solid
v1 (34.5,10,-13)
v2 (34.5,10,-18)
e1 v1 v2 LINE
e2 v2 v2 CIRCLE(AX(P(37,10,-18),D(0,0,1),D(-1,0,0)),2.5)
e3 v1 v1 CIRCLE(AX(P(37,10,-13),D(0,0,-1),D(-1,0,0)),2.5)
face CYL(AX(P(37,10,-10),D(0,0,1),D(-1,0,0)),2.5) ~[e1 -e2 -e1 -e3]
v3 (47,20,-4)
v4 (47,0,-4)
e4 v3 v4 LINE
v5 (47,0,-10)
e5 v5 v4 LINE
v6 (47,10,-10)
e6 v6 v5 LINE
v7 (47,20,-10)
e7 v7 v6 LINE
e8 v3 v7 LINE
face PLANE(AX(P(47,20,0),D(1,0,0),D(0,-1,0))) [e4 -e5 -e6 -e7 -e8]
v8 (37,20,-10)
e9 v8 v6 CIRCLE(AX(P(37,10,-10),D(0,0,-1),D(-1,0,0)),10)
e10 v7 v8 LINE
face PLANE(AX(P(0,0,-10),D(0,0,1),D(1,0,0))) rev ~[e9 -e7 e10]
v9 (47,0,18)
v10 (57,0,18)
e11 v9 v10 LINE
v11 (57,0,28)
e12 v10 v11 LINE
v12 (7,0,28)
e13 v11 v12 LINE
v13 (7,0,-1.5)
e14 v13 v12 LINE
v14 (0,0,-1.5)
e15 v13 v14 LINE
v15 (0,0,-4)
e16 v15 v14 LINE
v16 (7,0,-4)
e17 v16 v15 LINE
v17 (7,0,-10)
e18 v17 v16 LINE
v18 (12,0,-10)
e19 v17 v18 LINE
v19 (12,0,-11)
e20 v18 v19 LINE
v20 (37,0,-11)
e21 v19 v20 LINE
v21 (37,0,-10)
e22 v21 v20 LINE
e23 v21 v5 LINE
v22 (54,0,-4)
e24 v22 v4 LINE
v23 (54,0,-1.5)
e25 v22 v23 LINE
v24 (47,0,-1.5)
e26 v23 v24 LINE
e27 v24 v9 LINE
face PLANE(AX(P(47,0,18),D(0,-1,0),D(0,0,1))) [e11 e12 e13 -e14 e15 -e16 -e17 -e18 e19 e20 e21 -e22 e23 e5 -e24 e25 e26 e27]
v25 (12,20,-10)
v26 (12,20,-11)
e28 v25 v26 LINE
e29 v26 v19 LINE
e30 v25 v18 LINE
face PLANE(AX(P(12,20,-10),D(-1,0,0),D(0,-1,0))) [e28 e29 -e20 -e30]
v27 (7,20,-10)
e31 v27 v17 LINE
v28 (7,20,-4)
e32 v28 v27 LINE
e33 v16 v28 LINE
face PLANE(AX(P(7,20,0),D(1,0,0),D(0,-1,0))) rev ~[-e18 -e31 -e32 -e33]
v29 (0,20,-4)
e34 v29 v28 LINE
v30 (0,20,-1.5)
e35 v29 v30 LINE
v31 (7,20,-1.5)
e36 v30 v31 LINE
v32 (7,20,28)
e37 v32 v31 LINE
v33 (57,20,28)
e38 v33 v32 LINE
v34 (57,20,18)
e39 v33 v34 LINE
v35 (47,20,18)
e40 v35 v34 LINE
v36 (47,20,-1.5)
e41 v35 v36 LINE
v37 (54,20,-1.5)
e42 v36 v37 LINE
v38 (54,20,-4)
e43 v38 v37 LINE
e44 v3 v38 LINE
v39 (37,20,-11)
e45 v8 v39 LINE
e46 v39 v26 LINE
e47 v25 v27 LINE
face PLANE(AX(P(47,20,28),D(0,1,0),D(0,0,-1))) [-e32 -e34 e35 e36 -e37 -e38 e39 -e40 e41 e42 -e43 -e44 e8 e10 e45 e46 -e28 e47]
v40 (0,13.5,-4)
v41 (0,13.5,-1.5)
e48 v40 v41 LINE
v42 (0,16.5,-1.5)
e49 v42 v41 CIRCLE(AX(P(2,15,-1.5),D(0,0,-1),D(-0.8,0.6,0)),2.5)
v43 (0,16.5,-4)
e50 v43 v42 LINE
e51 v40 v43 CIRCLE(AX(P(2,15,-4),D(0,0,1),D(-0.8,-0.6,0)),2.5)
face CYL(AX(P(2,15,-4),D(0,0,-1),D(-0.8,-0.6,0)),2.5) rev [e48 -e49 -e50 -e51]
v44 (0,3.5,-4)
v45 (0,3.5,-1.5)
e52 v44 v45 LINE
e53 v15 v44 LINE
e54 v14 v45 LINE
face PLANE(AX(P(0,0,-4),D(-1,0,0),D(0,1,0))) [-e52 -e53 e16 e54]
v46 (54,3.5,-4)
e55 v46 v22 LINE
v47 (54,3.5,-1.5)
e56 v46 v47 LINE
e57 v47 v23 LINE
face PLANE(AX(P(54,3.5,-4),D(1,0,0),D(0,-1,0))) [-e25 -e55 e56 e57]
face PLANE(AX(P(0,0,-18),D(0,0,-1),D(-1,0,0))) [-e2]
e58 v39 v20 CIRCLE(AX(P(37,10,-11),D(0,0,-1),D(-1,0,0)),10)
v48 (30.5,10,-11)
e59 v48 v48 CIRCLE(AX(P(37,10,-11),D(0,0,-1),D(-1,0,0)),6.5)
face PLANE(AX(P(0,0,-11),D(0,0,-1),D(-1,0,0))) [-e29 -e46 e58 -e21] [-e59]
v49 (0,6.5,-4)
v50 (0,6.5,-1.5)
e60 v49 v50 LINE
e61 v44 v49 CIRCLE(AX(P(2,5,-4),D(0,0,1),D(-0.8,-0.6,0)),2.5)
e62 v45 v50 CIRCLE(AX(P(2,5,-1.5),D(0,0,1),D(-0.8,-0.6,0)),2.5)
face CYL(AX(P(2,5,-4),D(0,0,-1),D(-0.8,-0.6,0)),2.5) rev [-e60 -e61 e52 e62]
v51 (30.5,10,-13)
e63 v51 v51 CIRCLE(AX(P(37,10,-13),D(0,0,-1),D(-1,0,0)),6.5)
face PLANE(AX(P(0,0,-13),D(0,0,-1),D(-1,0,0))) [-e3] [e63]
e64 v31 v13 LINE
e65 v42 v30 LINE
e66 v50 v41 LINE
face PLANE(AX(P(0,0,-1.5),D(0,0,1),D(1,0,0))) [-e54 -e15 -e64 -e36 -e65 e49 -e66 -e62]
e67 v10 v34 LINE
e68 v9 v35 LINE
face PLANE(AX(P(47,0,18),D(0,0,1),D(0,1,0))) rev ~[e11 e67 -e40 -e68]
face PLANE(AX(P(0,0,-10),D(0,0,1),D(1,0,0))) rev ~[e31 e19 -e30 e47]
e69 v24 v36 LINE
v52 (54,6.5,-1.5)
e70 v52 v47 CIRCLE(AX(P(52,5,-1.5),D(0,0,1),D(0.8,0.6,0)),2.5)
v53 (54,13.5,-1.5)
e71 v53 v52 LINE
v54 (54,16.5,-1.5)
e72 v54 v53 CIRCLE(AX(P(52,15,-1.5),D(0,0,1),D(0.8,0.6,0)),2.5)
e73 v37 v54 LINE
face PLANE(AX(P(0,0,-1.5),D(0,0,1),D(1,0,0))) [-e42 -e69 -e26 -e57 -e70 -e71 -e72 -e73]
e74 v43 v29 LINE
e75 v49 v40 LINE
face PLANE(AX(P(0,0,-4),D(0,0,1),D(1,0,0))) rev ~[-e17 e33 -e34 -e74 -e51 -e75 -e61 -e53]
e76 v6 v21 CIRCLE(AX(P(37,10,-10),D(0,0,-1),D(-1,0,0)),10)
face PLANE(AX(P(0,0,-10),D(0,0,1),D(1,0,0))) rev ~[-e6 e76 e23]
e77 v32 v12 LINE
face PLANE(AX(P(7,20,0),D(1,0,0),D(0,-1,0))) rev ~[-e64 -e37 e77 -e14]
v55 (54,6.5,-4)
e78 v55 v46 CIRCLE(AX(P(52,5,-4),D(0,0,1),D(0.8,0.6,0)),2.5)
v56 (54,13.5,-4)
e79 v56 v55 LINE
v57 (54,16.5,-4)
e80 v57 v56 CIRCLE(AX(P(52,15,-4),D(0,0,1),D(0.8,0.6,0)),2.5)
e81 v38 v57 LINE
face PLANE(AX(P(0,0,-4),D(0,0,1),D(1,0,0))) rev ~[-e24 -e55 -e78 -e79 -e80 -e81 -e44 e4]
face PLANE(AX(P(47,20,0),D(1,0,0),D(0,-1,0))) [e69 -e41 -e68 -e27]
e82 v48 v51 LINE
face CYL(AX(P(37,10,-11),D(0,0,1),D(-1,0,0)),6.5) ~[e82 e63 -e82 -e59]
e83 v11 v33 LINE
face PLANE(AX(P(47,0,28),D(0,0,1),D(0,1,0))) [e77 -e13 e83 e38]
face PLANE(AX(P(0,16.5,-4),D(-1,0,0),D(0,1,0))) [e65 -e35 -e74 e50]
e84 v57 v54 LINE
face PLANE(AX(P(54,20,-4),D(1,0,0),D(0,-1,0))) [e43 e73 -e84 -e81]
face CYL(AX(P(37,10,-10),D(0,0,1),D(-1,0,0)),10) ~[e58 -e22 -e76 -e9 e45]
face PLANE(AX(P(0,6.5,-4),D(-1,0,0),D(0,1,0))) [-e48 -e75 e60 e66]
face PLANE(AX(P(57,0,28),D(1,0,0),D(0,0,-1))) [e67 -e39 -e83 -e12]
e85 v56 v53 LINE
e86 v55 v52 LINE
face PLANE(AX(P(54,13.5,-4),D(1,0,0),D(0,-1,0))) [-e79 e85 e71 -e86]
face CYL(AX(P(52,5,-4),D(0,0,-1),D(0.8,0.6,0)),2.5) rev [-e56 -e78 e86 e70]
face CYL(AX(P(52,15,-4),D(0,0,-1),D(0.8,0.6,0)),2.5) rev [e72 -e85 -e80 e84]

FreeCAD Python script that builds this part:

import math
import FreeCAD as App
import Part
import Sketcher

V = App.Vector
Q = App.Units.Quantity


def add_polygon(sketch, points):
    """Adds a closed chain of lines whose ends are joined by coincident constraints."""
    first, n = sketch.GeometryCount, len(points)
    for a, b in zip(points, points[1:] + points[:1]):
        sketch.addGeometry(Part.LineSegment(App.Vector(*a, 0), App.Vector(*b, 0)), False)
    for i in range(n):
        sketch.addConstraint(Sketcher.Constraint("Coincident", first + i, 2, first + (i + 1) % n, 1))

doc = App.newDocument("Part")
body = doc.addObject("PartDesign::Body", "Body")

sketch1 = body.newObject("Sketcher::SketchObject", "Sketch")
sketch1.AttachmentSupport = (doc.getObject("XY_Plane"), [""])
sketch1.MapMode = "FlatFace"
add_polygon(sketch1, [(7, 20), (7, 0), (47, 0), (47, 20)])
sketch1.addConstraint([
    Sketcher.Constraint("Vertical", 0),
    Sketcher.Constraint("Horizontal", 1),
    Sketcher.Constraint("Vertical", 2),
    Sketcher.Constraint("Horizontal", 3),
    Sketcher.Constraint("PointOnObject", 0, 2, -1),
    Sketcher.Constraint("DistanceX", 1, 1, 1, 2, Q("40 mm")),
    Sketcher.Constraint("DistanceY", 0, 2, 0, 1, Q("20 mm")),
    Sketcher.Constraint("DistanceX", -1, 1, 0, 2, Q("7 mm")),
])
pad1 = body.newObject("PartDesign::Pad", "Pad")
pad1.Profile = sketch1
pad1.Type = "TwoLengths"
pad1.Length = 28
pad1.Length2 = 10

sketch2 = body.newObject("Sketcher::SketchObject", "Sketch001")
sketch2.AttachmentSupport = (doc.getObject("XY_Plane"), [""])
sketch2.MapMode = "FlatFace"
sketch2.AttachmentOffset = App.Placement(V(0, 0, -10), App.Rotation())
sketch2.addGeometry(Part.Circle(V(37, 10, 0), V(0, 0, 1), 2.5), False)
sketch2.addConstraint([
    Sketcher.Constraint("Diameter", 0, Q("5 mm")),
    Sketcher.Constraint("DistanceY", -1, 1, 0, 3, Q("10 mm")),
    Sketcher.Constraint("DistanceX", -1, 1, 0, 3, Q("37 mm")),
])
pad2 = body.newObject("PartDesign::Pad", "Pad001")
pad2.Profile = sketch2
pad2.Length = 8
pad2.Reversed = True

sketch3 = body.newObject("Sketcher::SketchObject", "Sketch002")
sketch3.AttachmentSupport = (doc.getObject("XY_Plane"), [""])
sketch3.MapMode = "FlatFace"
sketch3.AttachmentOffset = App.Placement(V(0, 0, -10), App.Rotation())
sketch3.addGeometry([
    Part.ArcOfCircle(Part.Circle(V(37, 10, 0), V(0, 0, 1), 10), math.radians(-90), math.radians(90)),
    Part.LineSegment(V(37, 0, 0), V(12, 0, 0)),
    Part.LineSegment(V(12, 0, 0), V(12, 20, 0)),
    Part.LineSegment(V(12, 20, 0), V(37, 20, 0)),
    Part.Circle(V(37, 10, 0), V(0, 0, 1), 2.5),
], False)
sketch3.addConstraint([
    Sketcher.Constraint("Tangent", 0, 1, 1, 1),
    Sketcher.Constraint("Coincident", 1, 2, 2, 1),
    Sketcher.Constraint("Coincident", 2, 2, 3, 1),
    Sketcher.Constraint("Tangent", 3, 2, 0, 2),
    Sketcher.Constraint("Horizontal", 1),
    Sketcher.Constraint("Vertical", 2),
    Sketcher.Constraint("Horizontal", 3),
    Sketcher.Constraint("Coincident", 4, 3, 0, 3),
    Sketcher.Constraint("PointOnObject", 0, 1, -1),
    Sketcher.Constraint("Diameter", 4, Q("5 mm")),
    Sketcher.Constraint("Radius", 0, Q("10 mm")),
    Sketcher.Constraint("DistanceX", 1, 2, 1, 1, Q("25 mm")),
    Sketcher.Constraint("DistanceX", -1, 1, 0, 3, Q("37 mm")),
])
pad3 = body.newObject("PartDesign::Pad", "Pad002")
pad3.Profile = sketch3
pad3.Length = 1
pad3.Reversed = True

sketch4 = body.newObject("Sketcher::SketchObject", "Sketch003")
sketch4.AttachmentSupport = (doc.getObject("XY_Plane"), [""])
sketch4.MapMode = "FlatFace"
sketch4.AttachmentOffset = App.Placement(V(0, 0, -4), App.Rotation())
sketch4.addGeometry([
    Part.LineSegment(V(7, 20, 0), V(0, 20, 0)),
    Part.LineSegment(V(0, 20, 0), V(0, 16.5, 0)),
    Part.ArcOfCircle(Part.Circle(V(2, 15, 0), V(0, 0, 1), 2.5), math.radians(-143), math.radians(143)),
    Part.LineSegment(V(0, 13.5, 0), V(0, 6.5, 0)),
    Part.ArcOfCircle(Part.Circle(V(2, 5, 0), V(0, 0, 1), 2.5), math.radians(-143), math.radians(143)),
    Part.LineSegment(V(0, 3.5, 0), V(0, 0, 0)),
    Part.LineSegment(V(0, 0, 0), V(7, 0, 0)),
    Part.LineSegment(V(7, 0, 0), V(7, 20, 0)),
    Part.LineSegment(V(47, 20, 0), V(47, 0, 0)),
    Part.LineSegment(V(47, 0, 0), V(54, 0, 0)),
    Part.LineSegment(V(54, 0, 0), V(54, 3.5, 0)),
    Part.ArcOfCircle(Part.Circle(V(52, 5, 0), V(0, 0, 1), 2.5), math.radians(37), math.radians(323)),
    Part.LineSegment(V(54, 6.5, 0), V(54, 13.5, 0)),
    Part.ArcOfCircle(Part.Circle(V(52, 15, 0), V(0, 0, 1), 2.5), math.radians(37), math.radians(323)),
    Part.LineSegment(V(54, 16.5, 0), V(54, 20, 0)),
    Part.LineSegment(V(54, 20, 0), V(47, 20, 0)),
], False)
sketch4.addConstraint([
    Sketcher.Constraint("Coincident", 0, 2, 1, 1),
    Sketcher.Constraint("Coincident", 1, 2, 2, 2),
    Sketcher.Constraint("Coincident", 2, 1, 3, 1),
    Sketcher.Constraint("Coincident", 3, 2, 4, 2),
    Sketcher.Constraint("Coincident", 4, 1, 5, 1),
    Sketcher.Constraint("Coincident", 5, 2, 6, 1),
    Sketcher.Constraint("Coincident", 6, 2, 7, 1),
    Sketcher.Constraint("Coincident", 7, 2, 0, 1),
    Sketcher.Constraint("Coincident", 8, 2, 9, 1),
    Sketcher.Constraint("Coincident", 9, 2, 10, 1),
    Sketcher.Constraint("Coincident", 10, 2, 11, 2),
    Sketcher.Constraint("Coincident", 11, 1, 12, 1),
    Sketcher.Constraint("Coincident", 12, 2, 13, 2),
    Sketcher.Constraint("Coincident", 13, 1, 14, 1),
    Sketcher.Constraint("Coincident", 14, 2, 15, 1),
    Sketcher.Constraint("Coincident", 15, 2, 8, 1),
    Sketcher.Constraint("Horizontal", 0),
    Sketcher.Constraint("Vertical", 1),
    Sketcher.Constraint("Vertical", 3),
    Sketcher.Constraint("Vertical", 5),
    Sketcher.Constraint("Horizontal", 6),
    Sketcher.Constraint("Vertical", 7),
    Sketcher.Constraint("Vertical", 8),
    Sketcher.Constraint("Horizontal", 9),
    Sketcher.Constraint("Vertical", 10),
    Sketcher.Constraint("Vertical", 12),
    Sketcher.Constraint("Vertical", 14),
    Sketcher.Constraint("Horizontal", 15),
    Sketcher.Constraint("Coincident", 5, 2, -1, 1),
    Sketcher.Constraint("Equal", 2, 4),
    Sketcher.Constraint("Equal", 4, 11),
    Sketcher.Constraint("Equal", 11, 13),
    Sketcher.Constraint("PointOnObject", 0, 2, -2),
    Sketcher.Constraint("PointOnObject", 2, 1, -2),
    Sketcher.Constraint("PointOnObject", 8, 2, -1),
    Sketcher.Constraint("Horizontal", 4, 3, 11, 3),
    Sketcher.Constraint("Horizontal", 2, 3, 13, 3),
    Sketcher.Constraint("Horizontal", 4, 1, 10, 2),
    Sketcher.Constraint("Horizontal", 3, 2, 11, 1),
    Sketcher.Constraint("Horizontal", 2, 1, 12, 2),
    Sketcher.Constraint("Horizontal", 1, 2, 13, 1),
    Sketcher.Constraint("Horizontal", 7, 2, 14, 2),
    Sketcher.Constraint("Vertical", 2, 3, 4, 3),
    Sketcher.Constraint("Equal", 6, 9),
    Sketcher.Constraint("Equal", 15, 3),
    Sketcher.Constraint("Equal", 1, 5),
    Sketcher.Constraint("Radius", 2, Q("2.5 mm")),
    Sketcher.Constraint("DistanceX", 0, 2, 0, 1, Q("7 mm")),
    Sketcher.Constraint("DistanceY", 7, 1, 7, 2, Q("20 mm")),
    Sketcher.Constraint("DistanceY", -1, 1, 4, 3, Q("5 mm")),
    Sketcher.Constraint("DistanceX", -1, 1, 11, 3, Q("52 mm")),
])
pad4 = body.newObject("PartDesign::Pad", "Pad003")
pad4.Profile = sketch4
pad4.Length = 2.5

sketch5 = body.newObject("Sketcher::SketchObject", "Sketch004")
sketch5.AttachmentSupport = (doc.getObject("XY_Plane"), [""])
sketch5.MapMode = "FlatFace"
sketch5.AttachmentOffset = App.Placement(V(0, 0, -11), App.Rotation())
sketch5.addGeometry([
    Part.Circle(V(37, 10, 0), V(0, 0, 1), 6.5),
    Part.Circle(V(37, 10, 0), V(0, 0, 1), 2.5),
], False)
sketch5.addConstraint([
    Sketcher.Constraint("Coincident", 1, 3, 0, 3),
    Sketcher.Constraint("Diameter", 0, Q("13 mm")),
    Sketcher.Constraint("Diameter", 1, Q("5 mm")),
    Sketcher.Constraint("DistanceX", -1, 1, 0, 3, Q("37 mm")),
    Sketcher.Constraint("DistanceY", -1, 1, 0, 3, Q("10 mm")),
])
pad5 = body.newObject("PartDesign::Pad", "Pad004")
pad5.Profile = sketch5
pad5.Length = 2
pad5.Reversed = True

sketch6 = body.newObject("Sketcher::SketchObject", "Sketch005")
sketch6.AttachmentSupport = (doc.getObject("YZ_Plane"), [""])
sketch6.MapMode = "FlatFace"
sketch6.AttachmentOffset = App.Placement(V(0, 0, 47), App.Rotation())
add_polygon(sketch6, [(0, 28), (0, 18), (20, 18), (20, 28)])
sketch6.addConstraint([
    Sketcher.Constraint("Vertical", 0),
    Sketcher.Constraint("Horizontal", 1),
    Sketcher.Constraint("Vertical", 2),
    Sketcher.Constraint("Horizontal", 3),
    Sketcher.Constraint("PointOnObject", 0, 2, -2),
    Sketcher.Constraint("DistanceY", 0, 2, 0, 1, Q("10 mm")),
    Sketcher.Constraint("DistanceX", 1, 1, 1, 2, Q("20 mm")),
    Sketcher.Constraint("DistanceY", -1, 1, 0, 2, Q("18 mm")),
])
pad6 = body.newObject("PartDesign::Pad", "Pad005")
pad6.Profile = sketch6
pad6.Length = 10

doc.recompute()
